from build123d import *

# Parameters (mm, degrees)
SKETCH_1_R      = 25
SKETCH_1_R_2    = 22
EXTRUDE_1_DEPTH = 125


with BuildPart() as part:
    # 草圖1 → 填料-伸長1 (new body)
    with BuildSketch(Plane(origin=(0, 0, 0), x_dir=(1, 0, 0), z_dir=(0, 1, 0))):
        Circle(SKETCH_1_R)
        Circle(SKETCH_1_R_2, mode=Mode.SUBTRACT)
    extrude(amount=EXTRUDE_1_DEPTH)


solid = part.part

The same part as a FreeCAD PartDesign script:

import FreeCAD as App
import Part
import Sketcher
from FreeCAD import Vector

doc = App.newDocument("Part")
body = doc.addObject("PartDesign::Body", "Body")

# Sketch on XZ plane
sketch1 = body.newObject("Sketcher::SketchObject", "Sketch")
sketch1.AttachmentSupport = (doc.getObject("XZ_Plane"), [""])
sketch1.MapMode = "FlatFace"
sketch1.addGeometry([
    Part.Circle(Vector(0, 0, 0), Vector(0, 0, 1), 25),
    Part.Circle(Vector(0, 0, 0), Vector(0, 0, 1), 22),
], False)
sketch1.addConstraint([
    Sketcher.Constraint("Coincident", 0, 3, -1, 1),
    Sketcher.Constraint("Coincident", 1, 3, -1, 1),
    Sketcher.Constraint("Diameter", 0, 50.0),
    Sketcher.Constraint("Diameter", 1, 44.0),
])
pad1 = body.newObject("PartDesign::Pad", "Pad")
pad1.Profile = sketch1
pad1.Length = 125
pad1.Reversed = True

doc.recompute()
